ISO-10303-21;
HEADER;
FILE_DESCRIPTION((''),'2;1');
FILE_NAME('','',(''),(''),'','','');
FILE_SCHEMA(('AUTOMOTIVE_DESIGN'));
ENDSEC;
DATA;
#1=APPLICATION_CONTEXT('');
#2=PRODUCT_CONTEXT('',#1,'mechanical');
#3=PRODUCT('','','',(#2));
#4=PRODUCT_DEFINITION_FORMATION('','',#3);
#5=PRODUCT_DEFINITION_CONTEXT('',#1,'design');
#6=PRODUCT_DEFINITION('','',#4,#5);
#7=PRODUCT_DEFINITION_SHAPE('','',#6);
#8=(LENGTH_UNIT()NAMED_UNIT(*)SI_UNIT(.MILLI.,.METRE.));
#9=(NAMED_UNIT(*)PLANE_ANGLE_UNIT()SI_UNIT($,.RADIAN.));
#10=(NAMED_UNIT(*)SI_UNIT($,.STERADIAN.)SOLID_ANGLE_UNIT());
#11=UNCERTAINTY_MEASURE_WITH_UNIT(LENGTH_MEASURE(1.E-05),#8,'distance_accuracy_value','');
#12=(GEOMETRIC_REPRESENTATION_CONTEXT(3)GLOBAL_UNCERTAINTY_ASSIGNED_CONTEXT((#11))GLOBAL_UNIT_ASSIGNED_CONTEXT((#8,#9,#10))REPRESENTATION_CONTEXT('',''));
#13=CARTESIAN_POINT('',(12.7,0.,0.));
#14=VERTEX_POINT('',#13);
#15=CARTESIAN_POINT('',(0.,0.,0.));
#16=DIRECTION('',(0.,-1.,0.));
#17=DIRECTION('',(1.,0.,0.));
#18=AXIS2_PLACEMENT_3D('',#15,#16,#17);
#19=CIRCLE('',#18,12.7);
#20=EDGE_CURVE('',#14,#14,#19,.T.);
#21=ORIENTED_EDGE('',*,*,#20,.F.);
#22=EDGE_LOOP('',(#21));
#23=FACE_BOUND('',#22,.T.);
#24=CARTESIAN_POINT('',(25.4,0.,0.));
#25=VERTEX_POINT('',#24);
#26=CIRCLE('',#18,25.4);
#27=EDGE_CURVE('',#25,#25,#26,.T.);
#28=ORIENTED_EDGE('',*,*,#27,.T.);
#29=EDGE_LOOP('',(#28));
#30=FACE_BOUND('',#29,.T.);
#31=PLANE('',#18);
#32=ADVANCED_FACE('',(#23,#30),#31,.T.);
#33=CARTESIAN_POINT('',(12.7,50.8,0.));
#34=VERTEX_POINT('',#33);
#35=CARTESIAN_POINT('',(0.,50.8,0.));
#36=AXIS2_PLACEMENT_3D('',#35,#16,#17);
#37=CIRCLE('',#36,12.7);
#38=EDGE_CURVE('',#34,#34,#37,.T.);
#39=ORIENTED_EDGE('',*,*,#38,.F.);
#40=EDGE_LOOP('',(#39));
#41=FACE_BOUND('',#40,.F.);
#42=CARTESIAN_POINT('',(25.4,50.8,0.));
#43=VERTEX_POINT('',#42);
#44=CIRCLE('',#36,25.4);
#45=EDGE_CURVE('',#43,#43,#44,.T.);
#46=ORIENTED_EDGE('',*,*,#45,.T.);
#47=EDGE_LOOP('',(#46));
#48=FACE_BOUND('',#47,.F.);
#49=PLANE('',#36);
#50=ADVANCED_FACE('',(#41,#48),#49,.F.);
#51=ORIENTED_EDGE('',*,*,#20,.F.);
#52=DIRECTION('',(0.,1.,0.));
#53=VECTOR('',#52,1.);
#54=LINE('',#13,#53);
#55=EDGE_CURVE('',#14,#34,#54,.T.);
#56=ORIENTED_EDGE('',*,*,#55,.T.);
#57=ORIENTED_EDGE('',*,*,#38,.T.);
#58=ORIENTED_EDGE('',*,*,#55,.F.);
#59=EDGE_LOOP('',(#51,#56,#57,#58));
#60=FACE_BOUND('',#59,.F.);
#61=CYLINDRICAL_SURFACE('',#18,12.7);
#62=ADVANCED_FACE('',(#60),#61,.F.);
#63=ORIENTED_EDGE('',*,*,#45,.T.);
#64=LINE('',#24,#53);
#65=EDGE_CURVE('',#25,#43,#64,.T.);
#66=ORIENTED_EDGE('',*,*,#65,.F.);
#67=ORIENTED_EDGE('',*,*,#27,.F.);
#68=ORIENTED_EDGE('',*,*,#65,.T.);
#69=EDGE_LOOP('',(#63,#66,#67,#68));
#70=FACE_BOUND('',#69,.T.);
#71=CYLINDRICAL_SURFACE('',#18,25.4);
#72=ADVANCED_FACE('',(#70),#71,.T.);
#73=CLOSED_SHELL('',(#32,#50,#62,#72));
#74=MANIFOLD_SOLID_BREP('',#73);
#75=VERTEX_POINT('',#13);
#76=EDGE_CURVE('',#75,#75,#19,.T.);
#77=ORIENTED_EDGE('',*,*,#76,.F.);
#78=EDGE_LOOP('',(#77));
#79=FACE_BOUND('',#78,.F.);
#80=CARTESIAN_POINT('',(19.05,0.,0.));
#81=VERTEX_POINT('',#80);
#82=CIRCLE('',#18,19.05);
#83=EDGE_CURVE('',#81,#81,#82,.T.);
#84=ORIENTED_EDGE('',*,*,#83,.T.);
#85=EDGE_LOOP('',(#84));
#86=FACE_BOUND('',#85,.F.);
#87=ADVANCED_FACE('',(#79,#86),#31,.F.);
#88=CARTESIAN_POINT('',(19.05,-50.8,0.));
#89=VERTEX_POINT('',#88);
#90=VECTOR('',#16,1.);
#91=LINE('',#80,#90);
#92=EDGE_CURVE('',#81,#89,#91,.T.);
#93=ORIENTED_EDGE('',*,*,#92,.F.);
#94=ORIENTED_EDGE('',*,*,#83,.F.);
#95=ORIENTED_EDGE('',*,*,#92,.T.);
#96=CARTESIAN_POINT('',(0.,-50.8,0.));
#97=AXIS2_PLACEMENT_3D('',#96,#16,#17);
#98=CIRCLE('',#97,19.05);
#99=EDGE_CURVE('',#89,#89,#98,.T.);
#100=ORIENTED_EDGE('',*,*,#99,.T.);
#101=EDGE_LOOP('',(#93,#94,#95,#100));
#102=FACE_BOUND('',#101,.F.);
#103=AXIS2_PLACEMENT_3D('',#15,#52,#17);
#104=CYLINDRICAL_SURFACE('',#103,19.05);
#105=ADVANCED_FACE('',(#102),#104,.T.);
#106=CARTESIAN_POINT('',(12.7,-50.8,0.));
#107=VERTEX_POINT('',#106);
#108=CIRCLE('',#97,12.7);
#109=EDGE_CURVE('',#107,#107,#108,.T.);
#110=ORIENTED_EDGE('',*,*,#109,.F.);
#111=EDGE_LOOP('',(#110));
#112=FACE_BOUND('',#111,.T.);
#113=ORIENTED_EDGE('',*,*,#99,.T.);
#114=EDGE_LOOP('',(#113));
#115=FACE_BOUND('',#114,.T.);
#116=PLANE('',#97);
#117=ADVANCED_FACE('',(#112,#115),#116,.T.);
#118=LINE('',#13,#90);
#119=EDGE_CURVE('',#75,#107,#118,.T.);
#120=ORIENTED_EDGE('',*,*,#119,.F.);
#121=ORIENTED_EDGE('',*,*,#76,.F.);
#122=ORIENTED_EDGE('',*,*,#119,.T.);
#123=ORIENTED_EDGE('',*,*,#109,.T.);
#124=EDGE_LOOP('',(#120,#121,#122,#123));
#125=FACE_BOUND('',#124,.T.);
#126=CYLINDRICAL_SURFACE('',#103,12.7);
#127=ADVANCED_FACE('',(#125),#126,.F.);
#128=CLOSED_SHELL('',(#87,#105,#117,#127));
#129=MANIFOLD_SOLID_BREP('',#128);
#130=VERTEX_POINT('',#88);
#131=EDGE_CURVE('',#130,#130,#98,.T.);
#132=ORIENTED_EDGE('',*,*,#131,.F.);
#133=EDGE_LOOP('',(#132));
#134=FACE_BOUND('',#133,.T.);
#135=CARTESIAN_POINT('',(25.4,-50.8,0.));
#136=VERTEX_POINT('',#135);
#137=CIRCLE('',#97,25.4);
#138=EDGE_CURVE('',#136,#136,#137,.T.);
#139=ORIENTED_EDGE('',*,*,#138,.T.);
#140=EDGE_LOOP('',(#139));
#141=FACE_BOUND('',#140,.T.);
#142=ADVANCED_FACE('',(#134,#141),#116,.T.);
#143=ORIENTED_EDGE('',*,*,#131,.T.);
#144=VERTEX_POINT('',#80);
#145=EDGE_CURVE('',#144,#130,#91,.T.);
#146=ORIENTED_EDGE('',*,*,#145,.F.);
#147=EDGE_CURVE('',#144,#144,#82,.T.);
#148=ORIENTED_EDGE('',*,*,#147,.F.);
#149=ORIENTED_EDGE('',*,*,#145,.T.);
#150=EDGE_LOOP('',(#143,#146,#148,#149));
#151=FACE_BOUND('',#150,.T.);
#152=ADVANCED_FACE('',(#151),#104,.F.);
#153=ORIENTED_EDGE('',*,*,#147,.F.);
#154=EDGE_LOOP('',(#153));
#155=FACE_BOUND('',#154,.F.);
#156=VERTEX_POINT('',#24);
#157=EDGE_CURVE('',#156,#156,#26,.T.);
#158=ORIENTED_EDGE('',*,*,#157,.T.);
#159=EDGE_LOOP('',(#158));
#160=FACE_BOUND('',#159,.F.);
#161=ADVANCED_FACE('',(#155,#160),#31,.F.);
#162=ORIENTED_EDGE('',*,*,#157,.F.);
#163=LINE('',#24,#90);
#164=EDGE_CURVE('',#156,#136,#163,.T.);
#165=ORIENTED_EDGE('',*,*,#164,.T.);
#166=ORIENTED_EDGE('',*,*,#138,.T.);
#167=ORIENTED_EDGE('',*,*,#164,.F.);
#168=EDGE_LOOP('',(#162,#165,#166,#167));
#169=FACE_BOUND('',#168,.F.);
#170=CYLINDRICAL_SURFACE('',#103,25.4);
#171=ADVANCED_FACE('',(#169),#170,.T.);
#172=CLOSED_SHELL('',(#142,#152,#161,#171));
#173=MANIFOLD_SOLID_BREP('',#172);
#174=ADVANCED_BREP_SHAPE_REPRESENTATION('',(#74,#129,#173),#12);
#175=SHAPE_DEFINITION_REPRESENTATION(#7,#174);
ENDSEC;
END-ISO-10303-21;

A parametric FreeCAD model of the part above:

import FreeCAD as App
import Part
import Sketcher
from FreeCAD import Vector
Q = App.Units.Quantity

doc = App.newDocument("Part")
body = doc.addObject("PartDesign::Body", "Body")

# Sketch on XZ plane
sketch1 = body.newObject("Sketcher::SketchObject", "Sketch")
sketch1.AttachmentSupport = (doc.getObject("XZ_Plane"), [""])
sketch1.MapMode = "FlatFace"
sketch1.addGeometry([
    Part.Circle(Vector(0, 0, 0), Vector(0, 0, 1), 25),
    Part.Circle(Vector(0, 0, 0), Vector(0, 0, 1), 19),
], False)
sketch1.addConstraint([
    Sketcher.Constraint("Coincident", 0, 3, -1, 1),
    Sketcher.Constraint("Coincident", 1, 3, -1, 1),
    Sketcher.Constraint("Diameter", 0, Q("2 in")),
    Sketcher.Constraint("Diameter", 1, Q("1.5 in")),
])
pad1 = body.newObject("PartDesign::Pad", "Pad")
pad1.Profile = sketch1
pad1.Length = Q("2 in")
body2 = doc.addObject("PartDesign::Body", "Body001")

# Sketch on XZ plane
sketch2 = body2.newObject("Sketcher::SketchObject", "Sketch001")
sketch2.AttachmentSupport = (doc.getObject("XZ_Plane001"), [""])
sketch2.MapMode = "FlatFace"
sketch2.addGeometry([
    Part.Circle(Vector(0, 0, 0), Vector(0, 0, 1), 19),
    Part.Circle(Vector(0, 0, 0), Vector(0, 0, 1), 13),
], False)
sketch2.addConstraint([
    Sketcher.Constraint("Coincident", 0, 3, -1, 1),
    Sketcher.Constraint("Coincident", 1, 3, -1, 1),
    Sketcher.Constraint("Diameter", 1, Q("1 in")),
    Sketcher.Constraint("Diameter", 0, Q("1.5 in")),
])
pad2 = body2.newObject("PartDesign::Pad", "Pad001")
pad2.Profile = sketch2
pad2.Length = Q("2 in")
body3 = doc.addObject("PartDesign::Body", "Body002")

# Sketch on XZ plane
sketch3 = body3.newObject("Sketcher::SketchObject", "Sketch002")
sketch3.AttachmentSupport = (doc.getObject("XZ_Plane002"), [""])
sketch3.MapMode = "FlatFace"
sketch3.addGeometry([
    Part.Circle(Vector(0, 0, 0), Vector(0, 0, 1), 25),
    Part.Circle(Vector(0, 0, 0), Vector(0, 0, 1), 13),
], False)
sketch3.addConstraint([
    Sketcher.Constraint("Coincident", 0, 3, -1, 1),
    Sketcher.Constraint("Coincident", 1, 3, -1, 1),
    Sketcher.Constraint("Diameter", 0, Q("2 in")),
    Sketcher.Constraint("Diameter", 1, Q("1 in")),
])
pad3 = body3.newObject("PartDesign::Pad", "Pad002")
pad3.Profile = sketch3
pad3.Length = Q("2 in")
pad3.Reversed = True

doc.recompute()
